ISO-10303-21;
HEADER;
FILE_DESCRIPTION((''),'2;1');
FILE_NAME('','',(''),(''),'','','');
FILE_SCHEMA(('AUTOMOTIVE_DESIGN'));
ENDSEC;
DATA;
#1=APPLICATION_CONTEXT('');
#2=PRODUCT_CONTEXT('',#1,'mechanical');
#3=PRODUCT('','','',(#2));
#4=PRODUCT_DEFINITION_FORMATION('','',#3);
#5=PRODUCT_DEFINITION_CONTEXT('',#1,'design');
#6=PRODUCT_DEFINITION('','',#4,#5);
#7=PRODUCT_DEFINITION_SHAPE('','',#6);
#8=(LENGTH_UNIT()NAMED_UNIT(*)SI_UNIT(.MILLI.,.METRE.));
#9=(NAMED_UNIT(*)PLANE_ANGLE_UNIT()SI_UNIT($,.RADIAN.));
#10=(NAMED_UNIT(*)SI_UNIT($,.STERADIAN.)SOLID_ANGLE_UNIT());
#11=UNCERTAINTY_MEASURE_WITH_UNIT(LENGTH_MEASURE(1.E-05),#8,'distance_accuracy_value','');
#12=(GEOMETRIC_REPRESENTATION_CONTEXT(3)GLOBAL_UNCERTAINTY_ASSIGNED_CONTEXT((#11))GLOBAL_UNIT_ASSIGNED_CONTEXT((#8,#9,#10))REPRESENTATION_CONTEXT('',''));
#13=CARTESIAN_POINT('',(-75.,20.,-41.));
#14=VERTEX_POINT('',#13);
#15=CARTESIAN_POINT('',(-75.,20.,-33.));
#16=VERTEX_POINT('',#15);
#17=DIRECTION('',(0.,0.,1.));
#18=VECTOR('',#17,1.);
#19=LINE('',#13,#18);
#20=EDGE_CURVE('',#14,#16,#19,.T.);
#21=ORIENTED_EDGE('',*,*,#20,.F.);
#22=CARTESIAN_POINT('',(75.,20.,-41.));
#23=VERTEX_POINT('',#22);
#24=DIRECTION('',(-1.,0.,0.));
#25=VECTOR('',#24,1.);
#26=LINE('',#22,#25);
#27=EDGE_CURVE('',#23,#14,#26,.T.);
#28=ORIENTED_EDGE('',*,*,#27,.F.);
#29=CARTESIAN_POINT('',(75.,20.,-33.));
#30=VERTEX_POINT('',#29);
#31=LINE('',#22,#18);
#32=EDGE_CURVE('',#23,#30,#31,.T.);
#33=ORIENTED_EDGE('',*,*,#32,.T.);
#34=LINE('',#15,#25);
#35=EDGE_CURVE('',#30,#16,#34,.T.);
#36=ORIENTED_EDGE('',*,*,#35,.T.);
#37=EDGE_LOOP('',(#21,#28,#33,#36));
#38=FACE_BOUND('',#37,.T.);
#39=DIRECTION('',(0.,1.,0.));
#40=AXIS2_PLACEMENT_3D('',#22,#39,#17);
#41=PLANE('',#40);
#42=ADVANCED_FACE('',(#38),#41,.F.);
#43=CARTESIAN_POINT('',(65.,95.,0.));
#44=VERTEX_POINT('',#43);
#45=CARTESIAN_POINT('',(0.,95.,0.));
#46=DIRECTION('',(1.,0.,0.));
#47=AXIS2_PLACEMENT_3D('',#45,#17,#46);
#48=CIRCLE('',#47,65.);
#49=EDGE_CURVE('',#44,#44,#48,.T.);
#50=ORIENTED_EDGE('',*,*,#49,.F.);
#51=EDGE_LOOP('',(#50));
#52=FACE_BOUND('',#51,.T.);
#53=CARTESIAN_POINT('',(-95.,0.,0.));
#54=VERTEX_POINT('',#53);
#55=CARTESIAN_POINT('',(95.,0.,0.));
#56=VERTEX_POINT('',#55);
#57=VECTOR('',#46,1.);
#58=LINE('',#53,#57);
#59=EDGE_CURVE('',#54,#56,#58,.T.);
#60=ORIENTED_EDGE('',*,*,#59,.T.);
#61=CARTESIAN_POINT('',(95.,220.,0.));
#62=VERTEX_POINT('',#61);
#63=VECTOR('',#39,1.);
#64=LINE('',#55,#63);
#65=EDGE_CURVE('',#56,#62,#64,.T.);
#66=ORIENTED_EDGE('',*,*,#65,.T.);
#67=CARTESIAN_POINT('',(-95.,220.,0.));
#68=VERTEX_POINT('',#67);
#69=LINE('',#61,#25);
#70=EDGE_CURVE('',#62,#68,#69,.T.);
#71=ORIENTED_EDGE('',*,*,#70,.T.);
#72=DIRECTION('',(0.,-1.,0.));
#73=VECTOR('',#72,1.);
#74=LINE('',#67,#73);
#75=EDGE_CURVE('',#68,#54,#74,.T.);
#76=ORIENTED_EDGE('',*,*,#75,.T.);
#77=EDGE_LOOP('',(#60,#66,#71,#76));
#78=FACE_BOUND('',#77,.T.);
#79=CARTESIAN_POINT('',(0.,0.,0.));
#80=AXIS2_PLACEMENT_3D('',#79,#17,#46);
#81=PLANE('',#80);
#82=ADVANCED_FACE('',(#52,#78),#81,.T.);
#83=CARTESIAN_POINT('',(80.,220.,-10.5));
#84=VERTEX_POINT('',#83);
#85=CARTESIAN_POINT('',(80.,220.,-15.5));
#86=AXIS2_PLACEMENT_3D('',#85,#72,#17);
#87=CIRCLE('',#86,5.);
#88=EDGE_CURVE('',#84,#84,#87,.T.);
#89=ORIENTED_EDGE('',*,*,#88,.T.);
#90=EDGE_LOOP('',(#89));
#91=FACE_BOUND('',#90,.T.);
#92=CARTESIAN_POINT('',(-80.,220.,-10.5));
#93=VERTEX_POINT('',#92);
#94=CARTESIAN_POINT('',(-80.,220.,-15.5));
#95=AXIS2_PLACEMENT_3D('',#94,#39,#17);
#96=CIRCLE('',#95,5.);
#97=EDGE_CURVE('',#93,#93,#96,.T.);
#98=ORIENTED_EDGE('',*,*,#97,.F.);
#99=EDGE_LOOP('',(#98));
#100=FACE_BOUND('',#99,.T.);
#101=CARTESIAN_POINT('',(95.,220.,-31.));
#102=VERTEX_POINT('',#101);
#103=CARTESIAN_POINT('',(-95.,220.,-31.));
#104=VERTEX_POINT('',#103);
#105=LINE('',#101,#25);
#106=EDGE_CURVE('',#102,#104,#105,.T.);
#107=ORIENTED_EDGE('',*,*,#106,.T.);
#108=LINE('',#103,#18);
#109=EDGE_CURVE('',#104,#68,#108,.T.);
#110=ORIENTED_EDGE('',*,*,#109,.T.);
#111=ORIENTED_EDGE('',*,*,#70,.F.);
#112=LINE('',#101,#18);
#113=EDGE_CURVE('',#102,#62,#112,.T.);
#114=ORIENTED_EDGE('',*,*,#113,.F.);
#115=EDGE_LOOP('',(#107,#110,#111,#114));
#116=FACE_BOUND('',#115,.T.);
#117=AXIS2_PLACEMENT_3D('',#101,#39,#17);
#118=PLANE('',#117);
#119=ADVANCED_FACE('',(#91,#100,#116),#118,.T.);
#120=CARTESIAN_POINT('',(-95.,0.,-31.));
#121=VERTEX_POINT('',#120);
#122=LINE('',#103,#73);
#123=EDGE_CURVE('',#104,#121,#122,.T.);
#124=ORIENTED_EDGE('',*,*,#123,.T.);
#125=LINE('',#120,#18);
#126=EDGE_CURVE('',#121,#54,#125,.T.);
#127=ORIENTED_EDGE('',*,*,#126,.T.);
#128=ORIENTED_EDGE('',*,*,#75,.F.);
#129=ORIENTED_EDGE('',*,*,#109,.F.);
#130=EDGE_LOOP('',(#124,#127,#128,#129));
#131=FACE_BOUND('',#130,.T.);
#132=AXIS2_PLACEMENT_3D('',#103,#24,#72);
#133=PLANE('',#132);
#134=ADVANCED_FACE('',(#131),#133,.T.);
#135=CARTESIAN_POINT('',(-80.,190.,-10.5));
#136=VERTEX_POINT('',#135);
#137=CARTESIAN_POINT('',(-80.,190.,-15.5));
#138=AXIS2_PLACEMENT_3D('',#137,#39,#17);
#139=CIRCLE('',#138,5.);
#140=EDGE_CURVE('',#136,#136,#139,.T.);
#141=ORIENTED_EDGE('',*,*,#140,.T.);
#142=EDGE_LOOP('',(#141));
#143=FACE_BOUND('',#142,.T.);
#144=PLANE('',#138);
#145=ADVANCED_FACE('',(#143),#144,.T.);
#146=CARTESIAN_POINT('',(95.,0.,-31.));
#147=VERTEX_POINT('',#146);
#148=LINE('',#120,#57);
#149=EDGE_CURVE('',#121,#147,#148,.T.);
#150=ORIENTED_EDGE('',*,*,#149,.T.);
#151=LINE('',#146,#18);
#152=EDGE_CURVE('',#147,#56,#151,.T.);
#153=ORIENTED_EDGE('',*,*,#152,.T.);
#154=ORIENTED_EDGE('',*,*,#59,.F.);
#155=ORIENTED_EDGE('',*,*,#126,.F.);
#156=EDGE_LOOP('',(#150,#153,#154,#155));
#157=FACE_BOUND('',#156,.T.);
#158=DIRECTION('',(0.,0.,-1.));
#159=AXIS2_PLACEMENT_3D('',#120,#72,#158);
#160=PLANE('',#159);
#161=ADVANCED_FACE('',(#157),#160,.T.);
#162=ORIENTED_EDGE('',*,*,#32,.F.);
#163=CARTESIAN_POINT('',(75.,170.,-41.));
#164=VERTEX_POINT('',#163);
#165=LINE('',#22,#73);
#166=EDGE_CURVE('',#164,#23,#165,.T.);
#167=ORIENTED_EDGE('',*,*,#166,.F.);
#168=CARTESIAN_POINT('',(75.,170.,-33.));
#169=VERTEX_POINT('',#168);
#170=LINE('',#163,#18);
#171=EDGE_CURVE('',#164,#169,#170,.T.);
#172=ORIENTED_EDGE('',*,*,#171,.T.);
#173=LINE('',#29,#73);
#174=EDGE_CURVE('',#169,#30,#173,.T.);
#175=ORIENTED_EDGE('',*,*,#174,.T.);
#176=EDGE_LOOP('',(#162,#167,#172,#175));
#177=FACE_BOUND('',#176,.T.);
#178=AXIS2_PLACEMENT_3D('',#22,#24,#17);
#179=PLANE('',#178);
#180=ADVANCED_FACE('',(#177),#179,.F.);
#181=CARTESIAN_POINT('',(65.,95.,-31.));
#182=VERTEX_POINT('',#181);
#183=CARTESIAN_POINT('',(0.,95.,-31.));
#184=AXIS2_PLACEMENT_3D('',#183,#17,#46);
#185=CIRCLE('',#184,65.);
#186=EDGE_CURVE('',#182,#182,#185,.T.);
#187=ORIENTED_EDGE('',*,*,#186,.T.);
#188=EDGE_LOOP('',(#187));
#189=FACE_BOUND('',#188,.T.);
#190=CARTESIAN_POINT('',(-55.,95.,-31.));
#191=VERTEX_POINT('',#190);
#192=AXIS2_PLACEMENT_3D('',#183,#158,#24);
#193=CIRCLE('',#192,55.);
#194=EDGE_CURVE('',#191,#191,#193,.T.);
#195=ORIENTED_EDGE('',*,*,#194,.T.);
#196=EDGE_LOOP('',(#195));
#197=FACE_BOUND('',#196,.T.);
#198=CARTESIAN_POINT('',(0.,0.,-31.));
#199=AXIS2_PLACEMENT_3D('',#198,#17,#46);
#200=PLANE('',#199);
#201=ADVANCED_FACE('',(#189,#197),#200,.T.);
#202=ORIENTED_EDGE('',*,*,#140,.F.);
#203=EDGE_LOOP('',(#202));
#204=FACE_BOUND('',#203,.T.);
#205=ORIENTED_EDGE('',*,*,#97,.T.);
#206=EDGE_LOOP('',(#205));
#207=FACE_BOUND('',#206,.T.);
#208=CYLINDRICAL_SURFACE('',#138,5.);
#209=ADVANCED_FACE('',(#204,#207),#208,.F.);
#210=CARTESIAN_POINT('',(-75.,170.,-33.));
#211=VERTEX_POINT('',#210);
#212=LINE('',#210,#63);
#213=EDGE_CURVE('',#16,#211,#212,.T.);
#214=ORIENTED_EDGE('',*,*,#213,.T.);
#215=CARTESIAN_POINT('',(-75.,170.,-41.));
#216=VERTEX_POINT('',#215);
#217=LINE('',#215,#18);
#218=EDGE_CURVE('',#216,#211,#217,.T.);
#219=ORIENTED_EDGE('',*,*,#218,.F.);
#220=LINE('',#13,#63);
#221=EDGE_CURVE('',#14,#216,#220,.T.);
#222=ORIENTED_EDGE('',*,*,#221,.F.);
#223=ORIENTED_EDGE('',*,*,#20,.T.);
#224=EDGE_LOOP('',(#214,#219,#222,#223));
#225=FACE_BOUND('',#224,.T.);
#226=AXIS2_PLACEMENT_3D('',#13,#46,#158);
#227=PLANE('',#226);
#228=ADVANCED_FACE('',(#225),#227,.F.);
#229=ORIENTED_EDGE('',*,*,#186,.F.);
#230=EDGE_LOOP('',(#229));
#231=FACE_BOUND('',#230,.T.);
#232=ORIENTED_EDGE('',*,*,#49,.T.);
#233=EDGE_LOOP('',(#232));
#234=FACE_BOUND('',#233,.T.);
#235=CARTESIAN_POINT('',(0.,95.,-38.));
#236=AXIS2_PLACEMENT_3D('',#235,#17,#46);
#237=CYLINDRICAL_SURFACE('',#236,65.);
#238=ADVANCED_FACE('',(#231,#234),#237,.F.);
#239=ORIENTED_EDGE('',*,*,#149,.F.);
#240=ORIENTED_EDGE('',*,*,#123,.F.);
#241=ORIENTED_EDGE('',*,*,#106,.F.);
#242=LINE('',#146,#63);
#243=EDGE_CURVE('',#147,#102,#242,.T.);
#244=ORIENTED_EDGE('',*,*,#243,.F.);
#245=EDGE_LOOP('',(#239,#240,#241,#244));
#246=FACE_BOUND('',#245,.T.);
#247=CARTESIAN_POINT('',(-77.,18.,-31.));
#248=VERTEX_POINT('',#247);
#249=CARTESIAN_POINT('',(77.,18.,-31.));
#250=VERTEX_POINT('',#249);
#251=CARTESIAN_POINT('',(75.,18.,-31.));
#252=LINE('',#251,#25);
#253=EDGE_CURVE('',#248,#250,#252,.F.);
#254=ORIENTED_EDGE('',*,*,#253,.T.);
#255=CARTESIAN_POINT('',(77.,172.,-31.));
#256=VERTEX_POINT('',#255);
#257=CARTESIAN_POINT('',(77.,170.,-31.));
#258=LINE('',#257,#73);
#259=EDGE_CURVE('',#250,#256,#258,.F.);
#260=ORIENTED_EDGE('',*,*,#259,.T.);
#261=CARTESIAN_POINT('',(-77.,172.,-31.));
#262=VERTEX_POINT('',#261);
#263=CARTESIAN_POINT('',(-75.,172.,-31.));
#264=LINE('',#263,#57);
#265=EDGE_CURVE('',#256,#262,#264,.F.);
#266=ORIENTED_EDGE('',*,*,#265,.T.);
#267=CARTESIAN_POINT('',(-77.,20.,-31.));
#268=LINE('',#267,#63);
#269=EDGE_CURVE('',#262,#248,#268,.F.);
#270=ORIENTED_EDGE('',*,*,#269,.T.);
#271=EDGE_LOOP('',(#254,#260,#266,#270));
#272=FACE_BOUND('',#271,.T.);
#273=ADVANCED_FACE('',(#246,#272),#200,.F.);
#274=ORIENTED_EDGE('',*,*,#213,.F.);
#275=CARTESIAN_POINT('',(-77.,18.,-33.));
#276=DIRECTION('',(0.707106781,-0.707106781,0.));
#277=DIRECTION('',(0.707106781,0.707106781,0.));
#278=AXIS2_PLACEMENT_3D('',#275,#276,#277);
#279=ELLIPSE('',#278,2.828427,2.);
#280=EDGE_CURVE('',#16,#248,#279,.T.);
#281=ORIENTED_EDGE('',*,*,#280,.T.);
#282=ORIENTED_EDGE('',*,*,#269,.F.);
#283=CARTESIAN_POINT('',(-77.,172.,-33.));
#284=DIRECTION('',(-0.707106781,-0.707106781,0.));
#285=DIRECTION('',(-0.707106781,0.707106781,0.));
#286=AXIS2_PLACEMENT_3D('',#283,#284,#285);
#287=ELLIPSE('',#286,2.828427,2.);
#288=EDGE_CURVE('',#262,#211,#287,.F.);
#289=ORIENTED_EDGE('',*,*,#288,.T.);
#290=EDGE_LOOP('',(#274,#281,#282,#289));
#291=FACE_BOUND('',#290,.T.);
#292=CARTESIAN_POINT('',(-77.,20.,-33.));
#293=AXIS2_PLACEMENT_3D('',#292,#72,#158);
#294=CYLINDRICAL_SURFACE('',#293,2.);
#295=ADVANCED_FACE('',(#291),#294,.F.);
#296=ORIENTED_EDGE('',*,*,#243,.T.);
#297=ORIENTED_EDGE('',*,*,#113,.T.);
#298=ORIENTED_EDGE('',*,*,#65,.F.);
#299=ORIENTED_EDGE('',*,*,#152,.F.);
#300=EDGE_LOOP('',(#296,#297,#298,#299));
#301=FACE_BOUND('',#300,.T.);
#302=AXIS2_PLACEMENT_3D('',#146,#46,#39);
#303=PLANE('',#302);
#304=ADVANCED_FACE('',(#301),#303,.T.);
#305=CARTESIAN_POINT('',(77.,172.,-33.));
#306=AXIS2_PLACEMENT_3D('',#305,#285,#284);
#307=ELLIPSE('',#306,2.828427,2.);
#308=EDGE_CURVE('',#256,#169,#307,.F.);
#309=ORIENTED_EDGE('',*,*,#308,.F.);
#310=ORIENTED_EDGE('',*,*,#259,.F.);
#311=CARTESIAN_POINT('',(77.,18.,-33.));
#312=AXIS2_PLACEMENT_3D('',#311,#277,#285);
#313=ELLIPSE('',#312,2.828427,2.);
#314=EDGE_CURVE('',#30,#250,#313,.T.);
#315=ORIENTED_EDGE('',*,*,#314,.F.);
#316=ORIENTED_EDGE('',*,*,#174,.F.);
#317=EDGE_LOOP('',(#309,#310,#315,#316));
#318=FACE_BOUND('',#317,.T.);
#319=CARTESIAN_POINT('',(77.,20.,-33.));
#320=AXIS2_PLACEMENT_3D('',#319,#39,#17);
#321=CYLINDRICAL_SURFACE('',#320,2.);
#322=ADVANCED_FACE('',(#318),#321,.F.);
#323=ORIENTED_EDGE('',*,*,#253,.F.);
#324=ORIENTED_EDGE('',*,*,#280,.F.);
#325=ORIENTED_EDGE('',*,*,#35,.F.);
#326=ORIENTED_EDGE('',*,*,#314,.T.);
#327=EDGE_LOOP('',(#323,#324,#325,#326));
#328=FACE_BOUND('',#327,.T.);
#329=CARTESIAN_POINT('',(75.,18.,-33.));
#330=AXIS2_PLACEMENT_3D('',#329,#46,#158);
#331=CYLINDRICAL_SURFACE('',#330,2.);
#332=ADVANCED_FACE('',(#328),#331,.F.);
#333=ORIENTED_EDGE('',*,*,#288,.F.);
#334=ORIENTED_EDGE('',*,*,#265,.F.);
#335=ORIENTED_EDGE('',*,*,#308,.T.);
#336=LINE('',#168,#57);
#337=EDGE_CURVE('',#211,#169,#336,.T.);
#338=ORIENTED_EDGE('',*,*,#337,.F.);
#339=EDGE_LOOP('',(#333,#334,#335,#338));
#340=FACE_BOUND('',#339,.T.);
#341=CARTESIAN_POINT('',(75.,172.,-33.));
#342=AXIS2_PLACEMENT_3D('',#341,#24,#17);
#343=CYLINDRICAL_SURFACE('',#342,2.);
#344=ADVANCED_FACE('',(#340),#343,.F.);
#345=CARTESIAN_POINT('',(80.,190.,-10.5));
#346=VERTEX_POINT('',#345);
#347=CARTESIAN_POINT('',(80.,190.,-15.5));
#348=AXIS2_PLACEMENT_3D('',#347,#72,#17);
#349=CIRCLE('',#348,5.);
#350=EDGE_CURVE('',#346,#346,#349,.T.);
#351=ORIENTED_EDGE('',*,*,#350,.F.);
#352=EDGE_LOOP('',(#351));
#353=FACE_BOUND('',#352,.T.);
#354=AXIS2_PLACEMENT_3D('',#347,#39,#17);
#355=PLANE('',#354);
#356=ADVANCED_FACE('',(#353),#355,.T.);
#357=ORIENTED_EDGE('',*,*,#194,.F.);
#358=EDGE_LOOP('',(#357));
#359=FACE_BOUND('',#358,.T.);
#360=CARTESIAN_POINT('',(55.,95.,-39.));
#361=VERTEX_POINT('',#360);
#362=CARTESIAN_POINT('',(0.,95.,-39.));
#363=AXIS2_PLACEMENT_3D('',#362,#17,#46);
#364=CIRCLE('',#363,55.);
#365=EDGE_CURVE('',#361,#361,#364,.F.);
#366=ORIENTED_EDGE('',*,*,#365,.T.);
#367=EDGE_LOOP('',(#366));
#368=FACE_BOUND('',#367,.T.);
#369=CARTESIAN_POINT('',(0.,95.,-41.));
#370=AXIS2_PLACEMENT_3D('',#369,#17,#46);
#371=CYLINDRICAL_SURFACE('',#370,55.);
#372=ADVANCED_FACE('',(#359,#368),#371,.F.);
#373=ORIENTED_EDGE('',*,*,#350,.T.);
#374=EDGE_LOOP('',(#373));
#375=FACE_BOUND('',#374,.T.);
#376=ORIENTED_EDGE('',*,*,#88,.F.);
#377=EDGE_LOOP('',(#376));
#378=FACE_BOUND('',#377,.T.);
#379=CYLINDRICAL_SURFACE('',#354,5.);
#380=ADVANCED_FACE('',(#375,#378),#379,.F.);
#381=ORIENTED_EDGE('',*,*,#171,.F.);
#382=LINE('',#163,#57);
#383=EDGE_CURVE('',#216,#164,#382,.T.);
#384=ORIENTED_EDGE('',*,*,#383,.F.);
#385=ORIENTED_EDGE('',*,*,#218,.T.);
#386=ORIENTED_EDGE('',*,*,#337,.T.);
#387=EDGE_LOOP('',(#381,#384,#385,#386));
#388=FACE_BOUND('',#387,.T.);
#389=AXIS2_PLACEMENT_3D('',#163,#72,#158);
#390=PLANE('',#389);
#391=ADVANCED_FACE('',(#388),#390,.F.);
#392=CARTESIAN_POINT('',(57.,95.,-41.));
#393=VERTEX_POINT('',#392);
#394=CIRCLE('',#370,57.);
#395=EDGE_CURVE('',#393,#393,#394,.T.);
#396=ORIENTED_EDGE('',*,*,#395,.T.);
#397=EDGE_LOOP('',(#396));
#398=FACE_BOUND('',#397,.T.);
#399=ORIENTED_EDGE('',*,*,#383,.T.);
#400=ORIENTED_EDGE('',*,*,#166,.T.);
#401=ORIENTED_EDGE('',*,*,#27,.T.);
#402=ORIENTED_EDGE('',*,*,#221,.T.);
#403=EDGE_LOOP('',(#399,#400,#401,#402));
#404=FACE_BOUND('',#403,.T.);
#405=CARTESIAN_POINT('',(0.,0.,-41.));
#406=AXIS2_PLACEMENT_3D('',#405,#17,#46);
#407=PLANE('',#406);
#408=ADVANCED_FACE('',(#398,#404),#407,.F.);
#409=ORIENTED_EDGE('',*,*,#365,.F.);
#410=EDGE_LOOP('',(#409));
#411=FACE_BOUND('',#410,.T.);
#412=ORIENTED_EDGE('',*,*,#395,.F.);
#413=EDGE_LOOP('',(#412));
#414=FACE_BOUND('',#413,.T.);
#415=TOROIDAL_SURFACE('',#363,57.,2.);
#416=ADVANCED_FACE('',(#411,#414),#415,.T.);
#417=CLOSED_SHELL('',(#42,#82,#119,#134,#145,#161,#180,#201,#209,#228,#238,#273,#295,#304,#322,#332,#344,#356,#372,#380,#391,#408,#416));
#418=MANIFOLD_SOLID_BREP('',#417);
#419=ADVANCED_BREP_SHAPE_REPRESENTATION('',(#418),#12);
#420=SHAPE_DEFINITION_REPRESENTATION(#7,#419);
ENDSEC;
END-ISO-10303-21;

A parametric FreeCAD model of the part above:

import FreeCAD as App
import Part
import Sketcher
Q = App.Units.Quantity


def edges_at(feature, points):
    """Names of the edges that pass closest to the given points."""
    edges = feature.Shape.Edges
    near = lambda p: min(range(len(edges)), key=lambda i: edges[i].distToShape(Part.Vertex(*p))[0])
    return sorted({f"Edge{near(p) + 1}" for p in points})


def add_polygon(sketch, points):
    """Adds a closed chain of lines whose ends are joined by coincident constraints."""
    first, n = sketch.GeometryCount, len(points)
    for a, b in zip(points, points[1:] + points[:1]):
        sketch.addGeometry(Part.LineSegment(App.Vector(*a, 0), App.Vector(*b, 0)), False)
    for i in range(n):
        sketch.addConstraint(Sketcher.Constraint("Coincident", first + i, 2, first + (i + 1) % n, 1))

doc = App.newDocument("Part")
body = doc.addObject("PartDesign::Body", "Body")

# Sketch on XY plane
sketch1 = doc.addObject("Sketcher::SketchObject", "Sketch")
body.addObject(sketch1)
sketch1.AttachmentSupport = (doc.XY_Plane, [""])
sketch1.MapMode = "FlatFace"
add_polygon(sketch1, [(-95, 220), (-95, 0), (95, 0), (95, 220)])  # lines 0-3
sketch1.addConstraint([
    Sketcher.Constraint("Vertical", 0),
    Sketcher.Constraint("Horizontal", 1),
    Sketcher.Constraint("Vertical", 2),
    Sketcher.Constraint("Horizontal", 3),
    Sketcher.Constraint("Symmetric", 0, 2, 1, 2, -1, 1),
    Sketcher.Constraint("DistanceX", 1, 1, 1, 2, Q("190 mm")),
    Sketcher.Constraint("DistanceY", 0, 2, 0, 1, Q("220 mm")),
])
pad1 = doc.addObject("PartDesign::Pad", "Pad")
body.addObject(pad1)
pad1.Profile = sketch1
pad1.Length = 31
pad1.Reversed = True

# Sketch on XY plane
sketch2 = doc.addObject("Sketcher::SketchObject", "Sketch001")
body.addObject(sketch2)
sketch2.AttachmentSupport = (doc.XY_Plane, [""])
sketch2.MapMode = "FlatFace"
sketch2.addGeometry(Part.Circle(App.Vector(0, 95, 0), App.Vector(0, 0, 1), 65), False)
sketch2.addConstraint([
    Sketcher.Constraint("PointOnObject", 0, 3, -2),
    Sketcher.Constraint("Diameter", 0, Q("130 mm")),
    Sketcher.Constraint("DistanceY", -1, 1, 0, 3, Q("95 mm")),
])
pocket1 = doc.addObject("PartDesign::Pocket", "Pocket")
body.addObject(pocket1)
pocket1.Profile = sketch2
pocket1.Length = 38

# Sketch on XZ plane
sketch3 = doc.addObject("Sketcher::SketchObject", "Sketch002")
body.addObject(sketch3)
sketch3.AttachmentSupport = (doc.XZ_Plane, [""])
sketch3.MapMode = "FlatFace"
sketch3.AttachmentOffset = App.Placement(App.Vector(0, 0, -220), App.Rotation())
sketch3.addGeometry(Part.Circle(App.Vector(-80, -16, 0), App.Vector(0, 0, 1), 5), False)
sketch3.addConstraint([
    Sketcher.Constraint("Diameter", 0, Q("10 mm")),
    Sketcher.Constraint("DistanceX", 0, 3, -1, 1, Q("80 mm")),
    Sketcher.Constraint("DistanceY", 0, 3, -1, 1, Q("15.5 mm")),
])
pocket2 = doc.addObject("PartDesign::Pocket", "Pocket001")
body.addObject(pocket2)
pocket2.Profile = sketch3
pocket2.Length = 30
pocket2.Reversed = True
doc.recompute()

mirrored = doc.addObject("PartDesign::Mirrored", "Mirrored")
body.addObject(mirrored)
mirrored.Originals = [pocket2]
mirrored.MirrorPlane = (doc.YZ_Plane, [""])
body.Tip = mirrored

# Sketch on XY plane
sketch4 = doc.addObject("Sketcher::SketchObject", "Sketch003")
body.addObject(sketch4)
sketch4.AttachmentSupport = (doc.XY_Plane, [""])
sketch4.MapMode = "FlatFace"
sketch4.AttachmentOffset = App.Placement(App.Vector(0, 0, -31), App.Rotation())
add_polygon(sketch4, [(75, 170), (75, 20), (-75, 20), (-75, 170)])  # lines 0-3
sketch4.addGeometry(Part.Circle(App.Vector(0, 95, 0), App.Vector(0, 0, 1), 55), False)  # 4
sketch4.addConstraint([
    Sketcher.Constraint("Vertical", 0),
    Sketcher.Constraint("Horizontal", 1),
    Sketcher.Constraint("Vertical", 2),
    Sketcher.Constraint("Horizontal", 3),
    Sketcher.Constraint("PointOnObject", 4, 3, -2),
    Sketcher.Constraint("Equal", 3, 0),
    Sketcher.Constraint("Diameter", 4, Q("110 mm")),
    Sketcher.Constraint("DistanceX", 1, 2, 1, 1, Q("150 mm")),
    Sketcher.Constraint("DistanceY", -1, 1, 4, 3, Q("95 mm")),
    Sketcher.Constraint("DistanceX", -1, 1, 0, 2, Q("75 mm")),
    Sketcher.Constraint("DistanceY", -1, 1, 0, 2, Q("20 mm")),
])
pad2 = doc.addObject("PartDesign::Pad", "Pad001")
body.addObject(pad2)
pad2.Profile = sketch4
pad2.Length = 10
pad2.Reversed = True
doc.recompute()

fillet = doc.addObject("PartDesign::Fillet", "Fillet")
body.addObject(fillet)
fillet.Base = (pad2, edges_at(pad2, [
    (-75, 95, -31),
    (0, 170, -31),
    (75, 95, -31),
    (0, 20, -31),
]))
fillet.Radius = 2
doc.recompute()

fillet2 = doc.addObject("PartDesign::Fillet", "Fillet001")
body.addObject(fillet2)
fillet2.Base = (fillet, edges_at(fillet, [(55, 95, -41)]))
fillet2.Radius = 2

doc.recompute()
